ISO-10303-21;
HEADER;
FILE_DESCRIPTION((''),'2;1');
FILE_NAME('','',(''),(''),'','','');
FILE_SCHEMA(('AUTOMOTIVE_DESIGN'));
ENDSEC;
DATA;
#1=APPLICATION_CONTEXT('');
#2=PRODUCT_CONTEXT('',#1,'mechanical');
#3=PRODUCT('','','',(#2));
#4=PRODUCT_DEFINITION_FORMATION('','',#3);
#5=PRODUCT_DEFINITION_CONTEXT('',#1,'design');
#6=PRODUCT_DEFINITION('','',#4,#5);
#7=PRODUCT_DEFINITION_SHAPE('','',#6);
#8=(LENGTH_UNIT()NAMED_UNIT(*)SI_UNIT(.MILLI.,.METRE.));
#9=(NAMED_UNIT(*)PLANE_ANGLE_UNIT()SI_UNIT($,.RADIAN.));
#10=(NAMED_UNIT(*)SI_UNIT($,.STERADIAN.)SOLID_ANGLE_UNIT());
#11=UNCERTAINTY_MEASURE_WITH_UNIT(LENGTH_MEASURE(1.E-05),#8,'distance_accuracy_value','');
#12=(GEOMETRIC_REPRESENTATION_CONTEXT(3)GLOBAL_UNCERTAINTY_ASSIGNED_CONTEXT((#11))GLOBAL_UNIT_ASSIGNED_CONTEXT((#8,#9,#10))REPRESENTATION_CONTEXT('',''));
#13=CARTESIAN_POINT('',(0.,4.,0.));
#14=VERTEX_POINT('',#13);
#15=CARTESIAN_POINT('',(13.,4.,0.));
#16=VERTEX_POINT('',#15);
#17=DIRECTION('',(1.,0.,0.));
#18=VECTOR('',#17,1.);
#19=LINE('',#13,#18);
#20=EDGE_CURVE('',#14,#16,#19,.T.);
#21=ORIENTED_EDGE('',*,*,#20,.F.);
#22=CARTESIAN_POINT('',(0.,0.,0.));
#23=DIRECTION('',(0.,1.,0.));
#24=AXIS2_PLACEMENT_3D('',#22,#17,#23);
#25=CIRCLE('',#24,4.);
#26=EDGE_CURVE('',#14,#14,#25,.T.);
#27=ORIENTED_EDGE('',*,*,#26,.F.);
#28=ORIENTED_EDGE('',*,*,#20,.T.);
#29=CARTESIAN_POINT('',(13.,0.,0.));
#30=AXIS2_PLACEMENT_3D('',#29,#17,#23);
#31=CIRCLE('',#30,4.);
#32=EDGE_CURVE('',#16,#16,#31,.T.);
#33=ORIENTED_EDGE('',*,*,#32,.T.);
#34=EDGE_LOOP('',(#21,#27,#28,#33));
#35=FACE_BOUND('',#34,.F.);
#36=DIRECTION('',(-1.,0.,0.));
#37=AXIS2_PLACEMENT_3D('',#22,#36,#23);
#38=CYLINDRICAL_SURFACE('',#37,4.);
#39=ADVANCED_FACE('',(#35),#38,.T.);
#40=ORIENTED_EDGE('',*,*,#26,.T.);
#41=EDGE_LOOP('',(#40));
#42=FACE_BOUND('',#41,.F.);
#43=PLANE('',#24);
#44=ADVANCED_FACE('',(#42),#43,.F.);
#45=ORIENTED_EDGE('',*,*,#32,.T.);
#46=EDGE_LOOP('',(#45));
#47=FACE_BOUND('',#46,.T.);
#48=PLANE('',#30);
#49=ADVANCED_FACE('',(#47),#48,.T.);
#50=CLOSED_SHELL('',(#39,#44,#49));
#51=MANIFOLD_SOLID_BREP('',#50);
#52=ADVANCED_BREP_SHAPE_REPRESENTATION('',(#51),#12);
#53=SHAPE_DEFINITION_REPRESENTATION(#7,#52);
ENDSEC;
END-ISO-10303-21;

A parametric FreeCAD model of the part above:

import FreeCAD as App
import Part
import Sketcher
from FreeCAD import Vector
Q = App.Units.Quantity

doc = App.newDocument("Part")
body = doc.addObject("PartDesign::Body", "Body")

sketch1 = doc.addObject("Sketcher::SketchObject", "Sketch")
body.addObject(sketch1)
sketch1.AttachmentSupport = (doc.YZ_Plane, [""])
sketch1.MapMode = "FlatFace"
sketch1.addGeometry(Part.Circle(Vector(0, 0, 0), Vector(0, 0, 1), 4), False)
sketch1.addConstraint([
    Sketcher.Constraint("Coincident", 0, 3, -1, 1),
    Sketcher.Constraint("Diameter", 0, Q("8 mm")),
])
pad1 = doc.addObject("PartDesign::Pad", "Pad")
body.addObject(pad1)
pad1.Profile = sketch1
pad1.Length = 13

doc.recompute()
